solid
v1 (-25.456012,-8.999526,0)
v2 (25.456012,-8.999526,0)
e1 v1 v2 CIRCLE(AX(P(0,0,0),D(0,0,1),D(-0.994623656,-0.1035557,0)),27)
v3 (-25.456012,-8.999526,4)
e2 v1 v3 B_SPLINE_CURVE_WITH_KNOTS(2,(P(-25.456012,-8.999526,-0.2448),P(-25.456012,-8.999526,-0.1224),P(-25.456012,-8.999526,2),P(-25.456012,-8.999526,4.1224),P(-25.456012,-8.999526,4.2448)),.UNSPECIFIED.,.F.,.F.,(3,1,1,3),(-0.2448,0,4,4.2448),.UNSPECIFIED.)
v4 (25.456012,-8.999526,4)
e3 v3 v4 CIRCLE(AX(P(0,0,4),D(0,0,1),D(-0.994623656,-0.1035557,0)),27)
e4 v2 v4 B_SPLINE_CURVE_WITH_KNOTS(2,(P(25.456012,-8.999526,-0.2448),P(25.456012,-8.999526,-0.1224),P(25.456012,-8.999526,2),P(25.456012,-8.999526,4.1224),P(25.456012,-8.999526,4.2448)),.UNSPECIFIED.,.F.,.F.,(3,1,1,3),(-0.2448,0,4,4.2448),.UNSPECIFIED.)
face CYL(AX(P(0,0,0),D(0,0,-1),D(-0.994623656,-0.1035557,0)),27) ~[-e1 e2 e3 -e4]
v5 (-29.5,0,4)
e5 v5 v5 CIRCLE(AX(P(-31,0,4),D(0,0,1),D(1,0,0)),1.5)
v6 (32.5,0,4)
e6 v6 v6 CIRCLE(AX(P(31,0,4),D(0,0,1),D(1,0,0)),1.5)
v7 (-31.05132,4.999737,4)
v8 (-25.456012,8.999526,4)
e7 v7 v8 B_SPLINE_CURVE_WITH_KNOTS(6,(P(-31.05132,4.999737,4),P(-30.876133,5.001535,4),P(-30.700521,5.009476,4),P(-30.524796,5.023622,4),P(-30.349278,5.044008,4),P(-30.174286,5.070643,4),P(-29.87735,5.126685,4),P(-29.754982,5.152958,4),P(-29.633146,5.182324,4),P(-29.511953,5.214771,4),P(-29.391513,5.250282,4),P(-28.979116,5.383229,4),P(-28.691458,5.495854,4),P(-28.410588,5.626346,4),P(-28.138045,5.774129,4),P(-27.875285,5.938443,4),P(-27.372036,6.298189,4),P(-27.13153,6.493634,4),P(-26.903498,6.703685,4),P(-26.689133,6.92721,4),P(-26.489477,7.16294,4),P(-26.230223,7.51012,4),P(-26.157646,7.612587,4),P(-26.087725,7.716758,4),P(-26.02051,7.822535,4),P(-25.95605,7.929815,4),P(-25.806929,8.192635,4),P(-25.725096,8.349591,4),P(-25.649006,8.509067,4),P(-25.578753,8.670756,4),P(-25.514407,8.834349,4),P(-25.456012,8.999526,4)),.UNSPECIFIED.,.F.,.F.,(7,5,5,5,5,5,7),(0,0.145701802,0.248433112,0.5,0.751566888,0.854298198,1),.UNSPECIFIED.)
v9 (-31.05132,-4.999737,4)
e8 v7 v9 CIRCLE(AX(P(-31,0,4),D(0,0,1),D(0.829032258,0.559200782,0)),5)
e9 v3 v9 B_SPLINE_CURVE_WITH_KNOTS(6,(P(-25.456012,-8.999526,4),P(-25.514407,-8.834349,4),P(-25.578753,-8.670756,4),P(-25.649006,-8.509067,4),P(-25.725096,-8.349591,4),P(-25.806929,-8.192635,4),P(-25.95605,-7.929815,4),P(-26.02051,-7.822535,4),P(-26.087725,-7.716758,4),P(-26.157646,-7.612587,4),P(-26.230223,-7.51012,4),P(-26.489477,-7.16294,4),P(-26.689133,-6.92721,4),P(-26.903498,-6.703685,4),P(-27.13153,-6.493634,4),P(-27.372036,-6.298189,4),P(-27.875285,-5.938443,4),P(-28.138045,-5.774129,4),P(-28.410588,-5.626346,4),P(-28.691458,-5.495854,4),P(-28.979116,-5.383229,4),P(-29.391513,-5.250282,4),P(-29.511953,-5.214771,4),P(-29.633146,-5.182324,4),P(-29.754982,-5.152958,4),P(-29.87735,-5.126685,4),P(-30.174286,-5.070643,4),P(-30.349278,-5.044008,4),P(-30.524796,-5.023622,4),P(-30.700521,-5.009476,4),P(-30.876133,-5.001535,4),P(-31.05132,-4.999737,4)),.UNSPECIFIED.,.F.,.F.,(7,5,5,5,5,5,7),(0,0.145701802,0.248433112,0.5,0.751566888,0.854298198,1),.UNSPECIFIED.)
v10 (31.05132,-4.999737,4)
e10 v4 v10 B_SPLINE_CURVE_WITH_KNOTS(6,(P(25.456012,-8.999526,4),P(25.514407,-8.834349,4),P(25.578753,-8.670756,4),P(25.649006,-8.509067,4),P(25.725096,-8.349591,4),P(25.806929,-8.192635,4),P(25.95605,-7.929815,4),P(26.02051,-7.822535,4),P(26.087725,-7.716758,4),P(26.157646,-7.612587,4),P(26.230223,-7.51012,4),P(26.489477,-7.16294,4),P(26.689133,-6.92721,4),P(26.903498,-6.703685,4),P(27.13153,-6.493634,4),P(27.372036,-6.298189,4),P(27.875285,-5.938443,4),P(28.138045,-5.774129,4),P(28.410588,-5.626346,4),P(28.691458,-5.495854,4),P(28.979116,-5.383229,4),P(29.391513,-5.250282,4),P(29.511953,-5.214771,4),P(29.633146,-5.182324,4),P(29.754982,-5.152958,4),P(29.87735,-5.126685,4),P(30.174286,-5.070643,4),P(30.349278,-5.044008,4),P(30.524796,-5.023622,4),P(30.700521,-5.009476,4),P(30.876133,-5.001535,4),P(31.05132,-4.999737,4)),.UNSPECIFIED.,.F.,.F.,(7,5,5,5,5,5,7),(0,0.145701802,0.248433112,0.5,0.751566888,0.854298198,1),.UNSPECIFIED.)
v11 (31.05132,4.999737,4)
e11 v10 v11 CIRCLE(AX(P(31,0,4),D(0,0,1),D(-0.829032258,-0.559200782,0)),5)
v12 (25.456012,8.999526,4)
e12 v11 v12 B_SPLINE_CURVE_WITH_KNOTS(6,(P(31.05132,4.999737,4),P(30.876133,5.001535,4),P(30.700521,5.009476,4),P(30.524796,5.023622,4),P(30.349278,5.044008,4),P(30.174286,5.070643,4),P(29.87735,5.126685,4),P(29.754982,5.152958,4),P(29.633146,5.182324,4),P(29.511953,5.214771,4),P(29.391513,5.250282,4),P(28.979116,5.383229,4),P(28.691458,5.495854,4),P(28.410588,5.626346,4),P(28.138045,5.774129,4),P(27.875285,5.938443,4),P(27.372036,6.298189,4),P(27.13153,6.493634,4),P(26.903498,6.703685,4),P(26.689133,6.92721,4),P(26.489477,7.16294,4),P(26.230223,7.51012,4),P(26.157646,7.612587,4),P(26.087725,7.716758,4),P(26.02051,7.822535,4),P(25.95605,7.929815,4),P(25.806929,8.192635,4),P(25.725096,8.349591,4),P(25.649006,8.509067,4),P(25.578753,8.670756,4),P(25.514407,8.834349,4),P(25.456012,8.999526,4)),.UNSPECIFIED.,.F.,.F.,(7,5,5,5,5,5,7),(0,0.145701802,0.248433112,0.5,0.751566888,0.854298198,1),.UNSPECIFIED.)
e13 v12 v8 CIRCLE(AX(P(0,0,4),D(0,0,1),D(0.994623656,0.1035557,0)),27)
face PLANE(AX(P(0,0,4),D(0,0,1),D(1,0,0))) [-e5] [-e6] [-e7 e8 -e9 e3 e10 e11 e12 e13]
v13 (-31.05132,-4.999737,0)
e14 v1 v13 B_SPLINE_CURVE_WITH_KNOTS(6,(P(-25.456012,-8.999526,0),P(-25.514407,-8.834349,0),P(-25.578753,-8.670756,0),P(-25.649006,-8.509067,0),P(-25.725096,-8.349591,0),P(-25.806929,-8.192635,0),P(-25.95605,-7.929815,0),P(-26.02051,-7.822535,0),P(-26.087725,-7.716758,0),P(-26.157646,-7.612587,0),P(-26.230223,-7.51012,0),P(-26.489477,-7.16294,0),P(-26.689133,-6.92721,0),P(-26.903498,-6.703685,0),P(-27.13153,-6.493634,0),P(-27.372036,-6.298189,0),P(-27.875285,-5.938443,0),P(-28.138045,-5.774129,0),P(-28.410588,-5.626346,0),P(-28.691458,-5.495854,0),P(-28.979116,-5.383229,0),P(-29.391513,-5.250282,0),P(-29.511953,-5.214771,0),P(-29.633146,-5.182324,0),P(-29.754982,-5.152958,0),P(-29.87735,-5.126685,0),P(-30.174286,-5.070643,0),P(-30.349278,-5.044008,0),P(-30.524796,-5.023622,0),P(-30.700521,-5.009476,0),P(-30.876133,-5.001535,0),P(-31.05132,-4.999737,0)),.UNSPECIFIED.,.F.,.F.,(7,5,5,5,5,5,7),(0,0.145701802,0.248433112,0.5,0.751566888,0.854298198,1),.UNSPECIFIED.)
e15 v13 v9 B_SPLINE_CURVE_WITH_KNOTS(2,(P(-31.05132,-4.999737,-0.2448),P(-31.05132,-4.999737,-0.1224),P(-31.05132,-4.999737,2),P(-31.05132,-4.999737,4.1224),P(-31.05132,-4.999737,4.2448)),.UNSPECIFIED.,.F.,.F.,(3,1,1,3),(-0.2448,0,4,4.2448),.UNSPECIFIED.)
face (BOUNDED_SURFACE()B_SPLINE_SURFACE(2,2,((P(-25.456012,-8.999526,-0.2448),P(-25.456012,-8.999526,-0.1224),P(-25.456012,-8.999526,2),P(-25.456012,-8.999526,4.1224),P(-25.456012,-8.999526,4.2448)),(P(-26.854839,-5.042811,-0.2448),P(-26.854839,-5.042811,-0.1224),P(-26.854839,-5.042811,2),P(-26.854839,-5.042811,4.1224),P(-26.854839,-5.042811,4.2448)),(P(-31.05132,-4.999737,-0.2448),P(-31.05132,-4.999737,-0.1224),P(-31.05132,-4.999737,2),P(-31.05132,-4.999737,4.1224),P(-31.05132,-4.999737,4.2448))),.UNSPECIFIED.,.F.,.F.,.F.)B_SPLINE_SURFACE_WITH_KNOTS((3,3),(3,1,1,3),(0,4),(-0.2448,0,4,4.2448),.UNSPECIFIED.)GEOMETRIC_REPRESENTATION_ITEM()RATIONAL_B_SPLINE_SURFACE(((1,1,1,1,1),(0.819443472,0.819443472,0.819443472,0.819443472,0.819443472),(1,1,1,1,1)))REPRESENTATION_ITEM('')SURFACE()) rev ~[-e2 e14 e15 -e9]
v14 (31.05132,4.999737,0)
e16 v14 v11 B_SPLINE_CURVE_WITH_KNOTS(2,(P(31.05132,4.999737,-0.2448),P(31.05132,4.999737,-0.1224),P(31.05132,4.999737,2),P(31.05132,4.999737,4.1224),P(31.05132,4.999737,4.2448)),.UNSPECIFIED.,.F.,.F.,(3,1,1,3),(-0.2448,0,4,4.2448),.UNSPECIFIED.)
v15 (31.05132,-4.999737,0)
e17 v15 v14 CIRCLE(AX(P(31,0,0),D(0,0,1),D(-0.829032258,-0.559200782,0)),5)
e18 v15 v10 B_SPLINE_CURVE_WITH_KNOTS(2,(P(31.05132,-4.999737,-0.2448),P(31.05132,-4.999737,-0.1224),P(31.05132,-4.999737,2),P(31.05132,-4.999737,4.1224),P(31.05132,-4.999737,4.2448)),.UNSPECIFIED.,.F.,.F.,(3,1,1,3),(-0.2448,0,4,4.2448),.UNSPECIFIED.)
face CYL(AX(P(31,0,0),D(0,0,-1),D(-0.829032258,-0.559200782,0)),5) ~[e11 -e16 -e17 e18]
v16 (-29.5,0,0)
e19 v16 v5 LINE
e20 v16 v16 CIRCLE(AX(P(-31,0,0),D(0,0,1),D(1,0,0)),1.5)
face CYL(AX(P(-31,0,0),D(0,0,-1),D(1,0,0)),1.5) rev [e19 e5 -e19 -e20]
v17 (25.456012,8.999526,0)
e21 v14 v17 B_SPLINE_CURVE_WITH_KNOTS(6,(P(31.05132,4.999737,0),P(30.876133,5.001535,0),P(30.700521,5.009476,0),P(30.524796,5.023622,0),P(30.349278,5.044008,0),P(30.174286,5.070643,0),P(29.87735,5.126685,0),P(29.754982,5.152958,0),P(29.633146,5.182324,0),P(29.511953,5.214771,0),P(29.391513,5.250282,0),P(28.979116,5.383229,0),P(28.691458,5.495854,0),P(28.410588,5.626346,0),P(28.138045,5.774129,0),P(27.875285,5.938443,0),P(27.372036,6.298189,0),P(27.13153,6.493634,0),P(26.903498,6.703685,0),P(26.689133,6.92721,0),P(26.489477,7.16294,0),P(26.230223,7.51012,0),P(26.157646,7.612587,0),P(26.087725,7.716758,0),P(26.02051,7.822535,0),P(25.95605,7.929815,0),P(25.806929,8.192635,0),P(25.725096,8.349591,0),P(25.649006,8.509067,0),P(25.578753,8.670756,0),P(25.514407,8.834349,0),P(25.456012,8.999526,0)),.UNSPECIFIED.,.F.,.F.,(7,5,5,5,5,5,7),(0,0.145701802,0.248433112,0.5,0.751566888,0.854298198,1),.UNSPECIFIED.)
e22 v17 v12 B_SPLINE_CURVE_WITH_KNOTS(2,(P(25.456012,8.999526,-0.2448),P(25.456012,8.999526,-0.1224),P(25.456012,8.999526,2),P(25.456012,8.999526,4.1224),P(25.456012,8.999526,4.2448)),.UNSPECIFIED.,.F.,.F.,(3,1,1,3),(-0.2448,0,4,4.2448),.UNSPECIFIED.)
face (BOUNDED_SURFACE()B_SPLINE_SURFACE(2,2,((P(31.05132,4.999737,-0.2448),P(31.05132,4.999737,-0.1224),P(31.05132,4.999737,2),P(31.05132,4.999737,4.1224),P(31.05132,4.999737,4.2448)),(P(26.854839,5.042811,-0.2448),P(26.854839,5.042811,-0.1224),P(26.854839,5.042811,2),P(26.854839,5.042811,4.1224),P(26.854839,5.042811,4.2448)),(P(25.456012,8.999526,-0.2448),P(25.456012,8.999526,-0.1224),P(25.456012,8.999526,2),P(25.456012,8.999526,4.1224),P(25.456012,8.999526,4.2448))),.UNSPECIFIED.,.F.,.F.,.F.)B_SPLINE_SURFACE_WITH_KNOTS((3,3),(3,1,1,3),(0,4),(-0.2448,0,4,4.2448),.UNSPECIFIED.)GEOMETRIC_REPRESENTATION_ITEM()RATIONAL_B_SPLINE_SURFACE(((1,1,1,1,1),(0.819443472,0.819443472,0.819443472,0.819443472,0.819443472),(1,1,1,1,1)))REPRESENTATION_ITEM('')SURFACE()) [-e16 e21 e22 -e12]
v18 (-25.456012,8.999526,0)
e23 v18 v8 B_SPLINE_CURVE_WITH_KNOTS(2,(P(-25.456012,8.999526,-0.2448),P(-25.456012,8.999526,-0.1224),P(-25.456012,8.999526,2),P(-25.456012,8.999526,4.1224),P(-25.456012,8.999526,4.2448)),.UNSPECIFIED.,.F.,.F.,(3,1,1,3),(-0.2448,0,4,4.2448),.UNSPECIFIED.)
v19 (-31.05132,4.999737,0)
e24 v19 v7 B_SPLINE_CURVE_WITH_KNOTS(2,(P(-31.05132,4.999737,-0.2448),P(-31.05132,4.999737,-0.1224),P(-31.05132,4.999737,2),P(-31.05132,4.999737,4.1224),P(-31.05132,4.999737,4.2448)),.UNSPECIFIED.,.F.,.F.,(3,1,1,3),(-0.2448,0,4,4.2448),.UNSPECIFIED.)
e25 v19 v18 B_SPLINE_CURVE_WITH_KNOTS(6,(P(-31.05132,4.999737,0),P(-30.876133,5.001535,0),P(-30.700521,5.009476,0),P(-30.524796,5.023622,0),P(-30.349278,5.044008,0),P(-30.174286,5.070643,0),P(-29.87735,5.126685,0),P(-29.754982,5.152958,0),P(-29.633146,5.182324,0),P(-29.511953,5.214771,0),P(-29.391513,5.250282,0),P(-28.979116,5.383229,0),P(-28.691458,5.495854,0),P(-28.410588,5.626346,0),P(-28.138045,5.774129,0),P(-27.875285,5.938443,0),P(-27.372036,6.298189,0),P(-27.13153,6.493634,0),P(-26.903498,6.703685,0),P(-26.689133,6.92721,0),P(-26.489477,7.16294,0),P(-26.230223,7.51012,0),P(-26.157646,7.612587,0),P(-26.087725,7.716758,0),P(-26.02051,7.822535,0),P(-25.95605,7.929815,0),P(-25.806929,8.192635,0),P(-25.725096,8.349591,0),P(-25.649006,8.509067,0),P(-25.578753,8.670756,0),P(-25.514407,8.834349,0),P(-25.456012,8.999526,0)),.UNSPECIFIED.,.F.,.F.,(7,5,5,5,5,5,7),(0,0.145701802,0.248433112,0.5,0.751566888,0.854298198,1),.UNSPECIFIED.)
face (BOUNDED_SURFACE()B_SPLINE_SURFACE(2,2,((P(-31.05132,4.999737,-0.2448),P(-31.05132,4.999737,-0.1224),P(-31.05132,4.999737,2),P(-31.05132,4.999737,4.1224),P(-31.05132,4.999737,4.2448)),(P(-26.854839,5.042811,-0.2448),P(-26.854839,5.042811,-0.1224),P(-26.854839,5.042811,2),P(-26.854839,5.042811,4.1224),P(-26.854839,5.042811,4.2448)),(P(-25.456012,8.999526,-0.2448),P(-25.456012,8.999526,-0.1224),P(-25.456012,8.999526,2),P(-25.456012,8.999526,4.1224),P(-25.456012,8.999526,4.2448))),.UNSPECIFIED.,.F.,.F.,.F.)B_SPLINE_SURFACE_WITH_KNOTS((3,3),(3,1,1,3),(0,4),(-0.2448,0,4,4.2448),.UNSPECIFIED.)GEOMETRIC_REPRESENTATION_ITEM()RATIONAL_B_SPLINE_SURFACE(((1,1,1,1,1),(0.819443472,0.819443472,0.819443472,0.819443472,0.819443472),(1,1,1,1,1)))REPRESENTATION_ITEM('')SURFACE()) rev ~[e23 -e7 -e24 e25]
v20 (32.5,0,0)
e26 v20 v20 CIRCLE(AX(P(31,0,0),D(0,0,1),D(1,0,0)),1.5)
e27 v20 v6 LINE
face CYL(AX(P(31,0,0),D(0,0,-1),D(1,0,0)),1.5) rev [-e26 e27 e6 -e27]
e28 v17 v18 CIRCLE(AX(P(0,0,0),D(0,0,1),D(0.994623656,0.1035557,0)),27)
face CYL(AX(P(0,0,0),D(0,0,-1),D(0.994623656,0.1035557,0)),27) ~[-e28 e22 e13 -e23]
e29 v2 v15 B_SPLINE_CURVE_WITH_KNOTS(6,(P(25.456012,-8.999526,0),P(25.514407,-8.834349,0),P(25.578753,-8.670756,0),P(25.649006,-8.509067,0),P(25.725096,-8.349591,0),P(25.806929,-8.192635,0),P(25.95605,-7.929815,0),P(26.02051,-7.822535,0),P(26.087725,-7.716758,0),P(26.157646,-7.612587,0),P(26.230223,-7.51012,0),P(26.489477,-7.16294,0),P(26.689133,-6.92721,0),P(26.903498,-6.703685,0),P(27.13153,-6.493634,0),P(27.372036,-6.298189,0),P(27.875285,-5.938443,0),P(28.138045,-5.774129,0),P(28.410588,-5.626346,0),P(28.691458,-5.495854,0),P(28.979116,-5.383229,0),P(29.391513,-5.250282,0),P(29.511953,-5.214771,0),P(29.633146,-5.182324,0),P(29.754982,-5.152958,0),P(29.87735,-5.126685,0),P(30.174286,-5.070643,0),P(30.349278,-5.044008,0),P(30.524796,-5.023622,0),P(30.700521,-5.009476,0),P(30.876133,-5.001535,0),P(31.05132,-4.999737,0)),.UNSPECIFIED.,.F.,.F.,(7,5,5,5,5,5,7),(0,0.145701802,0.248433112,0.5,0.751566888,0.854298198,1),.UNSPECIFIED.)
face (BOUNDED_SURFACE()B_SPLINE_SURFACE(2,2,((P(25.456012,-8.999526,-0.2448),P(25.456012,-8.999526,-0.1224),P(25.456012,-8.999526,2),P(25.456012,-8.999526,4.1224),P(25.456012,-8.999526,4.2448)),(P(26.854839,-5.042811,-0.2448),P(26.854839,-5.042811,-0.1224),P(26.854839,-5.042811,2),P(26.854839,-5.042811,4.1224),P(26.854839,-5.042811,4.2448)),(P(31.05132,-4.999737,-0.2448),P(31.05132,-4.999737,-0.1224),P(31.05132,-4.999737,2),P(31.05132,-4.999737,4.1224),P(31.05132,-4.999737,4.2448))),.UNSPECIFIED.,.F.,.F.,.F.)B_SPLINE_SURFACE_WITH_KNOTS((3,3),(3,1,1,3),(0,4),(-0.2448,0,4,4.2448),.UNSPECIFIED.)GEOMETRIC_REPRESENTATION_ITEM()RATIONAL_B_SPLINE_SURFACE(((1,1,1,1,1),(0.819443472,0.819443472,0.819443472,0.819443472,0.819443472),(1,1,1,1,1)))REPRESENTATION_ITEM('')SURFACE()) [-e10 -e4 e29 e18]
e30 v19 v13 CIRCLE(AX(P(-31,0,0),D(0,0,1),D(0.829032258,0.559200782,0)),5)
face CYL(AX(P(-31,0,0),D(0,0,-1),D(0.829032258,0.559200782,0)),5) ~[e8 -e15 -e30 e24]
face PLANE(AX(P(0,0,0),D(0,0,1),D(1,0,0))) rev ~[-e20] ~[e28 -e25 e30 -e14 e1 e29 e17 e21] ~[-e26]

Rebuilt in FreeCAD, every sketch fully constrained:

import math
import FreeCAD as App
import Part
import Sketcher
Q = App.Units.Quantity


def edges_at(feature, points):
    """Names of the edges that pass closest to the given points."""
    edges = feature.Shape.Edges
    near = lambda p: min(range(len(edges)), key=lambda i: edges[i].distToShape(Part.Vertex(*p))[0])
    return sorted({f"Edge{near(p) + 1}" for p in points})

doc = App.newDocument("Part")
body = doc.addObject("PartDesign::Body", "Body")

# Sketch on XY plane
sketch1 = body.newObject("Sketcher::SketchObject", "Sketch")
sketch1.AttachmentSupport = (doc.getObject("XY_Plane"), [""])
sketch1.MapMode = "FlatFace"
sketch1.addGeometry(Part.ArcOfCircle(Part.Circle(App.Vector(0, 0, 0), App.Vector(0, 0, 1), 27), math.radians(-174), math.radians(-6)), False)
sketch1.addGeometry(Part.ArcOfCircle(Part.Circle(App.Vector(31, 0, 0), App.Vector(0, 0, 1), 5), math.radians(-146), math.radians(146)), False)
sketch1.addGeometry(Part.ArcOfCircle(Part.Circle(App.Vector(0, 0, 0), App.Vector(0, 0, 1), 27), math.radians(6), math.radians(174)), False)
sketch1.addGeometry(Part.ArcOfCircle(Part.Circle(App.Vector(-31, 0, 0), App.Vector(0, 0, 1), 5), math.radians(34), math.radians(326)), False)
sketch1.addGeometry(Part.Circle(App.Vector(-31, 0, 0), App.Vector(0, 0, 1), 1.5), False)
sketch1.addGeometry(Part.Circle(App.Vector(31, 0, 0), App.Vector(0, 0, 1), 1.5), False)
sketch1.addConstraint(Sketcher.Constraint("Coincident", 0, 2, 1, 1))
sketch1.addConstraint(Sketcher.Constraint("Coincident", 1, 2, 2, 1))
sketch1.addConstraint(Sketcher.Constraint("Coincident", 2, 2, 3, 1))
sketch1.addConstraint(Sketcher.Constraint("Coincident", 3, 2, 0, 1))
sketch1.addConstraint(Sketcher.Constraint("Coincident", 0, 3, -1, 1))
sketch1.addConstraint(Sketcher.Constraint("Coincident", 2, 3, -1, 1))
sketch1.addConstraint(Sketcher.Constraint("Coincident", 4, 3, 3, 3))
sketch1.addConstraint(Sketcher.Constraint("Coincident", 5, 3, 1, 3))
sketch1.addConstraint(Sketcher.Constraint("Equal", 0, 2))
sketch1.addConstraint(Sketcher.Constraint("Equal", 1, 3))
sketch1.addConstraint(Sketcher.Constraint("Equal", 4, 5))
sketch1.addConstraint(Sketcher.Constraint("Symmetric", 1, 3, 3, 3, -1, 1))
sketch1.addConstraint(Sketcher.Constraint("PointOnObject", 1, 3, -1))
sketch1.addConstraint(Sketcher.Constraint("Diameter", 4, Q("3 mm")))
sketch1.addConstraint(Sketcher.Constraint("Radius", 0, Q("27 mm")))
sketch1.addConstraint(Sketcher.Constraint("Radius", 1, Q("5 mm")))
sketch1.addConstraint(Sketcher.Constraint("DistanceX", -1, 1, 1, 3, Q("31 mm")))
pad1 = body.newObject("PartDesign::Pad", "Pad")
pad1.Profile = sketch1
pad1.Length = 4
doc.recompute()

fillet = body.newObject("PartDesign::Fillet", "Fillet")
fillet.Base = (pad1, edges_at(pad1, [
    (-26.855, 2.796, 2),
    (26.855, 2.796, 2),
    (26.855, -2.796, 2),
    (-26.855, -2.796, 2),
]))
fillet.Radius = 6

doc.recompute()
